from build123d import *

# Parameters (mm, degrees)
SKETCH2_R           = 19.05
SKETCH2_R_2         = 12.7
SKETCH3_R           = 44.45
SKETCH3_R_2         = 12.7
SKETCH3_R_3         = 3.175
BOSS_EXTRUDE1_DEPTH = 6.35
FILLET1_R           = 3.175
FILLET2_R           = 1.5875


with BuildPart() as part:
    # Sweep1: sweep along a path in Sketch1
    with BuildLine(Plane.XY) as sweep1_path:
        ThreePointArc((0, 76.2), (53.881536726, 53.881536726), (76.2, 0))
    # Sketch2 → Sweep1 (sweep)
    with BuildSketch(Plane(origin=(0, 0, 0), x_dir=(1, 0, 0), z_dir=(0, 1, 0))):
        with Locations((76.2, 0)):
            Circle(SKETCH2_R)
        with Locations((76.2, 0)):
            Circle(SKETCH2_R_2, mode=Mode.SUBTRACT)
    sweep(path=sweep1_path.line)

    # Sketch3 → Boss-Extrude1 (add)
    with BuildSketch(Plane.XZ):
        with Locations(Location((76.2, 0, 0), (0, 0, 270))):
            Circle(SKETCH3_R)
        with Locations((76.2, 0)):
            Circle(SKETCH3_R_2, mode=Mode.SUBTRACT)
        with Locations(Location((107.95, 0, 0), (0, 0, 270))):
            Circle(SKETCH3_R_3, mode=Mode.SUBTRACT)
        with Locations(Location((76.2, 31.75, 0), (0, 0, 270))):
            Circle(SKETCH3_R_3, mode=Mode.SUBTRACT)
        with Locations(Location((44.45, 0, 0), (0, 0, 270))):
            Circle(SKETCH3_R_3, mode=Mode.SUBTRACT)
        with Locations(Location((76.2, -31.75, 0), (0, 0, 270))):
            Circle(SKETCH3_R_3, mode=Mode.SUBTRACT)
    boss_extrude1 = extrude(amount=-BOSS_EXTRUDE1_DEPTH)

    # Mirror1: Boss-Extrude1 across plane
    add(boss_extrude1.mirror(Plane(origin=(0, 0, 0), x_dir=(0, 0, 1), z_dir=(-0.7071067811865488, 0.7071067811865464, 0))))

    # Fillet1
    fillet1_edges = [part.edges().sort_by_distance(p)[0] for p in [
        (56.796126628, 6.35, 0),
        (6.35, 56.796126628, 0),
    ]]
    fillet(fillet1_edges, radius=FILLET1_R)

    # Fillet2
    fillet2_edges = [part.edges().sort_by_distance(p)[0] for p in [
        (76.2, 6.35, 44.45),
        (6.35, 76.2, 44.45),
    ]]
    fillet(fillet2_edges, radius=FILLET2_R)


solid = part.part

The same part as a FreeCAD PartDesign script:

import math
import FreeCAD as App
import Part
import Sketcher

V = App.Vector
Q = App.Units.Quantity


def edges_at(feature, points):
    """Names of the edges that pass closest to the given points."""
    edges = feature.Shape.Edges
    near = lambda p: min(range(len(edges)), key=lambda i: edges[i].distToShape(Part.Vertex(*p))[0])
    return sorted({f"Edge{near(p) + 1}" for p in points})

doc = App.newDocument("Part")
body = doc.addObject("PartDesign::Body", "Body")

# Sketch on XZ plane
sketch1 = body.newObject("Sketcher::SketchObject", "Sketch")
sketch1.AttachmentSupport = (doc.getObject("XZ_Plane"), [""])
sketch1.MapMode = "FlatFace"
sketch1.addGeometry(Part.Circle(V(76, 0, 0), V(0, 0, 1), 19), False)
sketch1.addGeometry(Part.Circle(V(76, 0, 0), V(0, 0, 1), 13), False)
sketch1.addConstraint(Sketcher.Constraint("Coincident", 1, 3, 0, 3))
sketch1.addConstraint(Sketcher.Constraint("PointOnObject", 0, 3, -1))
sketch1.addConstraint(Sketcher.Constraint("Diameter", 1, Q("1 in")))
sketch1.addConstraint(Sketcher.Constraint("Diameter", 0, Q("1.5 in")))
sketch1.addConstraint(Sketcher.Constraint("DistanceX", -1, 1, 0, 3, Q("3 in")))

# Sketch on XY plane
sketch2 = body.newObject("Sketcher::SketchObject", "Sketch001")
sketch2.AttachmentSupport = (doc.getObject("XY_Plane"), [""])
sketch2.MapMode = "FlatFace"
sketch2.addGeometry(Part.ArcOfCircle(Part.Circle(V(0, 0, 0), V(0, 0, 1), 76), math.radians(0), math.radians(90)), False)
sketch2.addConstraint(Sketcher.Constraint("Coincident", 0, 3, -1, 1))
sketch2.addConstraint(Sketcher.Constraint("PointOnObject", 0, 1, -1))
sketch2.addConstraint(Sketcher.Constraint("PointOnObject", 0, 2, -2))
sketch2.addConstraint(Sketcher.Constraint("Radius", 0, Q("3 in")))
doc.recompute()

additivepipe = body.newObject("PartDesign::AdditivePipe", "AdditivePipe")
additivepipe.Profile = sketch1
additivepipe.Spine = (sketch2, ["Edge1"])

# Sketch on XZ plane
sketch3 = body.newObject("Sketcher::SketchObject", "Sketch002")
sketch3.AttachmentSupport = (doc.getObject("XZ_Plane"), [""])
sketch3.MapMode = "FlatFace"
sketch3.addGeometry(Part.Circle(V(76.2, 0, 0), V(0, 0, 1), 44.5), False)
sketch3.addGeometry(Part.Circle(V(44.5, 0, 0), V(0, 0, 1), 3.2), False)
sketch3.addGeometry(Part.Circle(V(76.2, 31.8, 0), V(0, 0, 1), 3.2), False)
sketch3.addGeometry(Part.Circle(V(108, 0, 0), V(0, 0, 1), 3.2), False)
sketch3.addGeometry(Part.Circle(V(76.2, 0, 0), V(0, 0, 1), 12.7), False)
sketch3.addGeometry(Part.Circle(V(76.2, -31.8, 0), V(0, 0, 1), 3.2), False)
sketch3.addConstraint(Sketcher.Constraint("Coincident", 4, 3, 0, 3))
sketch3.addConstraint(Sketcher.Constraint("Equal", 1, 2))
sketch3.addConstraint(Sketcher.Constraint("Equal", 2, 3))
sketch3.addConstraint(Sketcher.Constraint("Equal", 3, 5))
sketch3.addConstraint(Sketcher.Constraint("Symmetric", 2, 3, 5, 3, -1))
sketch3.addConstraint(Sketcher.Constraint("PointOnObject", 0, 3, -1))
sketch3.addConstraint(Sketcher.Constraint("PointOnObject", 1, 3, -1))
sketch3.addConstraint(Sketcher.Constraint("PointOnObject", 3, 3, -1))
sketch3.addConstraint(Sketcher.Constraint("Vertical", 0, 3, 2, 3))
sketch3.addConstraint(Sketcher.Constraint("Diameter", 4, Q("1 in")))
sketch3.addConstraint(Sketcher.Constraint("Diameter", 0, Q("3.5 in")))
sketch3.addConstraint(Sketcher.Constraint("Diameter", 1, Q("0.25 in")))
sketch3.addConstraint(Sketcher.Constraint("DistanceX", -1, 1, 0, 3, Q("3 in")))
sketch3.addConstraint(Sketcher.Constraint("DistanceX", 1, 3, 3, 3, Q("2.5 in")))
sketch3.addConstraint(Sketcher.Constraint("DistanceY", 5, 3, 2, 3, Q("2.5 in")))
sketch3.addConstraint(Sketcher.Constraint("DistanceX", -1, 1, 1, 3, Q("1.75 in")))
pad1 = body.newObject("PartDesign::Pad", "Pad")
pad1.Profile = sketch3
pad1.Length = Q("0.25 in")
pad1.Reversed = True
doc.recompute()

datumplane = body.newObject("PartDesign::Plane", "DatumPlane")
datumplane.Placement = App.Placement(V(0, 0, 0), App.Rotation(V(0.707106781, 0.707106781, 0), V(0, 0, -1), V(-0.707106781, 0.707106781, 0), "ZXY"))
mirrored = body.newObject("PartDesign::Mirrored", "Mirrored")
mirrored.Originals = [pad1]
mirrored.MirrorPlane = (datumplane, [""])
body.Tip = mirrored
doc.recompute()

fillet = body.newObject("PartDesign::Fillet", "Fillet")
fillet.Base = (mirrored, edges_at(mirrored, [(56.796, 6.35, 0), (6.35, 56.796, 0)]))
fillet.Radius = Q("0.125 in")
doc.recompute()

fillet2 = body.newObject("PartDesign::Fillet", "Fillet001")
fillet2.Base = (fillet, edges_at(fillet, [(76.2, 6.35, 44.45), (6.35, 76.2, 44.45)]))
fillet2.Radius = Q("0.0625 in")

doc.recompute()
